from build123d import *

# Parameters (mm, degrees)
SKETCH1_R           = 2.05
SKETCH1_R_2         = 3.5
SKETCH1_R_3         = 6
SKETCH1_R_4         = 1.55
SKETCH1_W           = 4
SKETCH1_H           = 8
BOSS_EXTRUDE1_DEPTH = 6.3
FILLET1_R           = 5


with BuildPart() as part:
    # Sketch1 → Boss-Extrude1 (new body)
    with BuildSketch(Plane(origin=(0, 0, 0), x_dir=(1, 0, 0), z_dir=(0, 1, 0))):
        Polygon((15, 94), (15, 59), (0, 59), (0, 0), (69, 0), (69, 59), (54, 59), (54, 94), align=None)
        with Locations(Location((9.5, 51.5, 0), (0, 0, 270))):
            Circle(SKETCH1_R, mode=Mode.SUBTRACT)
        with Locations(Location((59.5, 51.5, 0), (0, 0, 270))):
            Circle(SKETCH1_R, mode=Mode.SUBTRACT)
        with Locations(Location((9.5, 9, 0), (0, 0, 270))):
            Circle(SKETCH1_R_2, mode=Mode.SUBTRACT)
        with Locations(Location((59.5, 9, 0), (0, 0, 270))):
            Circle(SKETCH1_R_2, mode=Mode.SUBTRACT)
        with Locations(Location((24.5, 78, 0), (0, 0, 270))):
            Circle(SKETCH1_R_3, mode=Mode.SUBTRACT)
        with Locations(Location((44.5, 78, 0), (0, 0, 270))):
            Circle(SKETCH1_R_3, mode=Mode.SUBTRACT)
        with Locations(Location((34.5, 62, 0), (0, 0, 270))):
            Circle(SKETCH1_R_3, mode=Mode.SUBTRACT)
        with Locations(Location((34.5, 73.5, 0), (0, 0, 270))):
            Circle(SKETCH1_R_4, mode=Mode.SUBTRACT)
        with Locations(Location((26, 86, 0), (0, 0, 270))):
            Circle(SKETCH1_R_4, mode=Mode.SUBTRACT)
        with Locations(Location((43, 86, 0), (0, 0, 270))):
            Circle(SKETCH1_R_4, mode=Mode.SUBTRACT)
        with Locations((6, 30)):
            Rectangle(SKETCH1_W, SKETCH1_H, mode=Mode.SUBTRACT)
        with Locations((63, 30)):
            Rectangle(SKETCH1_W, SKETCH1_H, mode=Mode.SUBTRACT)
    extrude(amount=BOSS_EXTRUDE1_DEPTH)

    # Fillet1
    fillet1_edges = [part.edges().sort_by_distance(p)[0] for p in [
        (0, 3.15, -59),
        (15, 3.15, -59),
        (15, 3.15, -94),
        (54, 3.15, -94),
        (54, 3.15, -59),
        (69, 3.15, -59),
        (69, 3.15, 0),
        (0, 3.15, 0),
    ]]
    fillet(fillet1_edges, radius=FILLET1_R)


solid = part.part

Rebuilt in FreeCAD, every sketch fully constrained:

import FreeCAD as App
import Part
import Sketcher

V = App.Vector
Q = App.Units.Quantity


def edges_at(feature, points):
    """Names of the edges that pass closest to the given points."""
    edges = feature.Shape.Edges
    near = lambda p: min(range(len(edges)), key=lambda i: edges[i].distToShape(Part.Vertex(*p))[0])
    return sorted({f"Edge{near(p) + 1}" for p in points})

doc = App.newDocument("Part")
params = doc.addObject("Spreadsheet::Sheet", "Params")
for row, (alias, value) in enumerate([
    ("sketch1_diameter", "7 mm"),
    ("sketch1_diameter2", "12 mm"),
    ("sketch1_diameter3", "4.1 mm"),
    ("sketch1_diameter4", "3.1 mm"),
    ("sketch1_width", "15 mm"),
    ("pad1_length", "6.3 mm"),
    ("fillet_radius", "5 mm"),
], start=1):
    params.set(f"A{row}", alias)
    params.set(f"B{row}", "=" + value)
    params.setAlias(f"B{row}", alias)

body = doc.addObject("PartDesign::Body", "Body")

# Sketch on XZ plane
sketch1 = body.newObject("Sketcher::SketchObject", "Sketch")
sketch1.AttachmentSupport = (doc.getObject("XZ_Plane"), [""])
sketch1.MapMode = "FlatFace"
sketch1.addGeometry(Part.LineSegment(V(15, -94, 0), V(15, -59, 0)), False)
sketch1.addGeometry(Part.LineSegment(V(15, -59, 0), V(0, -59, 0)), False)
sketch1.addGeometry(Part.LineSegment(V(0, -59, 0), V(0, 0, 0)), False)
sketch1.addGeometry(Part.LineSegment(V(0, 0, 0), V(69, 0, 0)), False)
sketch1.addGeometry(Part.LineSegment(V(69, 0, 0), V(69, -59, 0)), False)
sketch1.addGeometry(Part.LineSegment(V(69, -59, 0), V(54, -59, 0)), False)
sketch1.addGeometry(Part.LineSegment(V(54, -59, 0), V(54, -94, 0)), False)
sketch1.addGeometry(Part.LineSegment(V(54, -94, 0), V(15, -94, 0)), False)
sketch1.addGeometry(Part.Circle(V(9.5, -9, 0), V(0, 0, 1), 3.5), False)
sketch1.addGeometry(Part.LineSegment(V(8, -26, 0), V(4, -26, 0)), False)
sketch1.addGeometry(Part.LineSegment(V(4, -26, 0), V(4, -34, 0)), False)
sketch1.addGeometry(Part.LineSegment(V(4, -34, 0), V(8, -34, 0)), False)
sketch1.addGeometry(Part.LineSegment(V(8, -34, 0), V(8, -26, 0)), False)
sketch1.addGeometry(Part.Circle(V(59.5, -9, 0), V(0, 0, 1), 3.5), False)
sketch1.addGeometry(Part.LineSegment(V(65, -26, 0), V(61, -26, 0)), False)
sketch1.addGeometry(Part.LineSegment(V(61, -26, 0), V(61, -34, 0)), False)
sketch1.addGeometry(Part.LineSegment(V(61, -34, 0), V(65, -34, 0)), False)
sketch1.addGeometry(Part.LineSegment(V(65, -34, 0), V(65, -26, 0)), False)
sketch1.addGeometry(Part.Circle(V(9.5, -51.5, 0), V(0, 0, 1), 2), False)
sketch1.addGeometry(Part.Circle(V(24.5, -78, 0), V(0, 0, 1), 6), False)
sketch1.addGeometry(Part.Circle(V(26, -86, 0), V(0, 0, 1), 1.6), False)
sketch1.addGeometry(Part.Circle(V(34.5, -62, 0), V(0, 0, 1), 6), False)
sketch1.addGeometry(Part.Circle(V(59.5, -51.5, 0), V(0, 0, 1), 2), False)
sketch1.addGeometry(Part.Circle(V(34.5, -73.5, 0), V(0, 0, 1), 1.6), False)
sketch1.addGeometry(Part.Circle(V(44.5, -78, 0), V(0, 0, 1), 6), False)
sketch1.addGeometry(Part.Circle(V(43, -86, 0), V(0, 0, 1), 1.6), False)
sketch1.addConstraint(Sketcher.Constraint("Coincident", 0, 2, 1, 1))
sketch1.addConstraint(Sketcher.Constraint("Coincident", 1, 2, 2, 1))
sketch1.addConstraint(Sketcher.Constraint("Coincident", 2, 2, 3, 1))
sketch1.addConstraint(Sketcher.Constraint("Coincident", 3, 2, 4, 1))
sketch1.addConstraint(Sketcher.Constraint("Coincident", 4, 2, 5, 1))
sketch1.addConstraint(Sketcher.Constraint("Coincident", 5, 2, 6, 1))
sketch1.addConstraint(Sketcher.Constraint("Coincident", 6, 2, 7, 1))
sketch1.addConstraint(Sketcher.Constraint("Coincident", 7, 2, 0, 1))
sketch1.addConstraint(Sketcher.Constraint("Coincident", 9, 2, 10, 1))
sketch1.addConstraint(Sketcher.Constraint("Coincident", 10, 2, 11, 1))
sketch1.addConstraint(Sketcher.Constraint("Coincident", 11, 2, 12, 1))
sketch1.addConstraint(Sketcher.Constraint("Coincident", 12, 2, 9, 1))
sketch1.addConstraint(Sketcher.Constraint("Coincident", 14, 2, 15, 1))
sketch1.addConstraint(Sketcher.Constraint("Coincident", 15, 2, 16, 1))
sketch1.addConstraint(Sketcher.Constraint("Coincident", 16, 2, 17, 1))
sketch1.addConstraint(Sketcher.Constraint("Coincident", 17, 2, 14, 1))
sketch1.addConstraint(Sketcher.Constraint("Vertical", 0))
sketch1.addConstraint(Sketcher.Constraint("Horizontal", 1))
sketch1.addConstraint(Sketcher.Constraint("Vertical", 2))
sketch1.addConstraint(Sketcher.Constraint("Horizontal", 3))
sketch1.addConstraint(Sketcher.Constraint("Vertical", 4))
sketch1.addConstraint(Sketcher.Constraint("Horizontal", 5))
sketch1.addConstraint(Sketcher.Constraint("Vertical", 6))
sketch1.addConstraint(Sketcher.Constraint("Horizontal", 7))
sketch1.addConstraint(Sketcher.Constraint("Horizontal", 9))
sketch1.addConstraint(Sketcher.Constraint("Vertical", 10))
sketch1.addConstraint(Sketcher.Constraint("Horizontal", 11))
sketch1.addConstraint(Sketcher.Constraint("Vertical", 12))
sketch1.addConstraint(Sketcher.Constraint("Horizontal", 14))
sketch1.addConstraint(Sketcher.Constraint("Vertical", 15))
sketch1.addConstraint(Sketcher.Constraint("Horizontal", 16))
sketch1.addConstraint(Sketcher.Constraint("Vertical", 17))
sketch1.addConstraint(Sketcher.Constraint("Coincident", 2, 2, -1, 1))
sketch1.addConstraint(Sketcher.Constraint("Equal", 8, 13))
sketch1.addConstraint(Sketcher.Constraint("Equal", 19, 21))
sketch1.addConstraint(Sketcher.Constraint("Equal", 18, 22))
sketch1.addConstraint(Sketcher.Constraint("Equal", 20, 23))
sketch1.addConstraint(Sketcher.Constraint("Equal", 21, 24))
sketch1.addConstraint(Sketcher.Constraint("Equal", 23, 25))
sketch1.addConstraint(Sketcher.Constraint("Horizontal", 8, 3, 13, 3))
sketch1.addConstraint(Sketcher.Constraint("Horizontal", 18, 3, 22, 3))
sketch1.addConstraint(Sketcher.Constraint("Horizontal", 19, 3, 24, 3))
sketch1.addConstraint(Sketcher.Constraint("Horizontal", 20, 3, 25, 3))
sketch1.addConstraint(Sketcher.Constraint("Horizontal", 1, 2, 4, 2))
sketch1.addConstraint(Sketcher.Constraint("Horizontal", 12, 2, 14, 2))
sketch1.addConstraint(Sketcher.Constraint("Horizontal", 11, 2, 15, 2))
sketch1.addConstraint(Sketcher.Constraint("Vertical", 8, 3, 18, 3))
sketch1.addConstraint(Sketcher.Constraint("Vertical", 13, 3, 22, 3))
sketch1.addConstraint(Sketcher.Constraint("Vertical", 21, 3, 23, 3))
sketch1.addConstraint(Sketcher.Constraint("Equal", 1, 5))
sketch1.addConstraint(Sketcher.Constraint("Equal", 11, 14))
sketch1.addConstraint(Sketcher.Constraint("Diameter", 8, Q("7 mm")))
sketch1.addConstraint(Sketcher.Constraint("Diameter", 19, Q("12 mm")))
sketch1.addConstraint(Sketcher.Constraint("Diameter", 18, Q("4.1 mm")))
sketch1.addConstraint(Sketcher.Constraint("Diameter", 20, Q("3.1 mm")))
sketch1.addConstraint(Sketcher.Constraint("DistanceX", 1, 2, 1, 1, Q("15 mm")))
sketch1.addConstraint(Sketcher.Constraint("DistanceX", 3, 1, 3, 2, Q("69 mm")))
sketch1.addConstraint(Sketcher.Constraint("DistanceX", 9, 2, 9, 1, Q("4 mm")))
sketch1.addConstraint(Sketcher.Constraint("DistanceY", 0, 1, 0, 2, Q("35 mm")))
sketch1.addConstraint(Sketcher.Constraint("DistanceY", 2, 1, 2, 2, Q("59 mm")))
sketch1.addConstraint(Sketcher.Constraint("DistanceY", 10, 2, 10, 1, Q("8 mm")))
sketch1.addConstraint(Sketcher.Constraint("DistanceY", 8, 3, -1, 1, Q("9 mm")))
sketch1.addConstraint(Sketcher.Constraint("DistanceY", 19, 3, -1, 1, Q("78 mm")))
sketch1.addConstraint(Sketcher.Constraint("DistanceX", -1, 1, 20, 3, Q("26 mm")))
sketch1.addConstraint(Sketcher.Constraint("DistanceY", 20, 3, -1, 1, Q("86 mm")))
sketch1.addConstraint(Sketcher.Constraint("DistanceY", 21, 3, -1, 1, Q("62 mm")))
sketch1.addConstraint(Sketcher.Constraint("DistanceX", -1, 1, 25, 3, Q("43 mm")))
sketch1.addConstraint(Sketcher.Constraint("DistanceX", -1, 1, 9, 2, Q("4 mm")))
sketch1.addConstraint(Sketcher.Constraint("DistanceY", 9, 2, -1, 1, Q("26 mm")))
sketch1.addConstraint(Sketcher.Constraint("DistanceX", -1, 1, 14, 2, Q("61 mm")))
sketch1.addConstraint(Sketcher.Constraint("DistanceX", 8, 3, 13, 3, Q("50 mm")))
sketch1.addConstraint(Sketcher.Constraint("DistanceX", 18, 3, 19, 3, Q("15 mm")))
sketch1.addConstraint(Sketcher.Constraint("DistanceX", 19, 3, 21, 3, Q("10 mm")))
sketch1.addConstraint(Sketcher.Constraint("DistanceY", 23, 3, 18, 3, Q("22 mm")))
sketch1.addConstraint(Sketcher.Constraint("DistanceX", 23, 3, 24, 3, Q("10 mm")))
sketch1.addConstraint(Sketcher.Constraint("DistanceX", -1, 1, 8, 3, Q("9.5 mm")))
sketch1.addConstraint(Sketcher.Constraint("DistanceY", 18, 3, -1, 1, Q("51.5 mm")))
sketch1.setExpression("Constraints[51]", "Params.sketch1_diameter")
sketch1.setExpression("Constraints[52]", "Params.sketch1_diameter2")
sketch1.setExpression("Constraints[53]", "Params.sketch1_diameter3")
sketch1.setExpression("Constraints[54]", "Params.sketch1_diameter4")
sketch1.setExpression("Constraints[55]", "Params.sketch1_width")
pad1 = body.newObject("PartDesign::Pad", "Pad")
pad1.Profile = sketch1
pad1.setExpression("Length", "Params.pad1_length")
pad1.Reversed = True
doc.recompute()

fillet = body.newObject("PartDesign::Fillet", "Fillet")
fillet.Base = (pad1, edges_at(pad1, [
    (0, 3.15, -59),
    (15, 3.15, -59),
    (15, 3.15, -94),
    (54, 3.15, -94),
    (54, 3.15, -59),
    (69, 3.15, -59),
    (69, 3.15, 0),
    (0, 3.15, 0),
]))
fillet.setExpression("Radius", "Params.fillet_radius")

doc.recompute()
